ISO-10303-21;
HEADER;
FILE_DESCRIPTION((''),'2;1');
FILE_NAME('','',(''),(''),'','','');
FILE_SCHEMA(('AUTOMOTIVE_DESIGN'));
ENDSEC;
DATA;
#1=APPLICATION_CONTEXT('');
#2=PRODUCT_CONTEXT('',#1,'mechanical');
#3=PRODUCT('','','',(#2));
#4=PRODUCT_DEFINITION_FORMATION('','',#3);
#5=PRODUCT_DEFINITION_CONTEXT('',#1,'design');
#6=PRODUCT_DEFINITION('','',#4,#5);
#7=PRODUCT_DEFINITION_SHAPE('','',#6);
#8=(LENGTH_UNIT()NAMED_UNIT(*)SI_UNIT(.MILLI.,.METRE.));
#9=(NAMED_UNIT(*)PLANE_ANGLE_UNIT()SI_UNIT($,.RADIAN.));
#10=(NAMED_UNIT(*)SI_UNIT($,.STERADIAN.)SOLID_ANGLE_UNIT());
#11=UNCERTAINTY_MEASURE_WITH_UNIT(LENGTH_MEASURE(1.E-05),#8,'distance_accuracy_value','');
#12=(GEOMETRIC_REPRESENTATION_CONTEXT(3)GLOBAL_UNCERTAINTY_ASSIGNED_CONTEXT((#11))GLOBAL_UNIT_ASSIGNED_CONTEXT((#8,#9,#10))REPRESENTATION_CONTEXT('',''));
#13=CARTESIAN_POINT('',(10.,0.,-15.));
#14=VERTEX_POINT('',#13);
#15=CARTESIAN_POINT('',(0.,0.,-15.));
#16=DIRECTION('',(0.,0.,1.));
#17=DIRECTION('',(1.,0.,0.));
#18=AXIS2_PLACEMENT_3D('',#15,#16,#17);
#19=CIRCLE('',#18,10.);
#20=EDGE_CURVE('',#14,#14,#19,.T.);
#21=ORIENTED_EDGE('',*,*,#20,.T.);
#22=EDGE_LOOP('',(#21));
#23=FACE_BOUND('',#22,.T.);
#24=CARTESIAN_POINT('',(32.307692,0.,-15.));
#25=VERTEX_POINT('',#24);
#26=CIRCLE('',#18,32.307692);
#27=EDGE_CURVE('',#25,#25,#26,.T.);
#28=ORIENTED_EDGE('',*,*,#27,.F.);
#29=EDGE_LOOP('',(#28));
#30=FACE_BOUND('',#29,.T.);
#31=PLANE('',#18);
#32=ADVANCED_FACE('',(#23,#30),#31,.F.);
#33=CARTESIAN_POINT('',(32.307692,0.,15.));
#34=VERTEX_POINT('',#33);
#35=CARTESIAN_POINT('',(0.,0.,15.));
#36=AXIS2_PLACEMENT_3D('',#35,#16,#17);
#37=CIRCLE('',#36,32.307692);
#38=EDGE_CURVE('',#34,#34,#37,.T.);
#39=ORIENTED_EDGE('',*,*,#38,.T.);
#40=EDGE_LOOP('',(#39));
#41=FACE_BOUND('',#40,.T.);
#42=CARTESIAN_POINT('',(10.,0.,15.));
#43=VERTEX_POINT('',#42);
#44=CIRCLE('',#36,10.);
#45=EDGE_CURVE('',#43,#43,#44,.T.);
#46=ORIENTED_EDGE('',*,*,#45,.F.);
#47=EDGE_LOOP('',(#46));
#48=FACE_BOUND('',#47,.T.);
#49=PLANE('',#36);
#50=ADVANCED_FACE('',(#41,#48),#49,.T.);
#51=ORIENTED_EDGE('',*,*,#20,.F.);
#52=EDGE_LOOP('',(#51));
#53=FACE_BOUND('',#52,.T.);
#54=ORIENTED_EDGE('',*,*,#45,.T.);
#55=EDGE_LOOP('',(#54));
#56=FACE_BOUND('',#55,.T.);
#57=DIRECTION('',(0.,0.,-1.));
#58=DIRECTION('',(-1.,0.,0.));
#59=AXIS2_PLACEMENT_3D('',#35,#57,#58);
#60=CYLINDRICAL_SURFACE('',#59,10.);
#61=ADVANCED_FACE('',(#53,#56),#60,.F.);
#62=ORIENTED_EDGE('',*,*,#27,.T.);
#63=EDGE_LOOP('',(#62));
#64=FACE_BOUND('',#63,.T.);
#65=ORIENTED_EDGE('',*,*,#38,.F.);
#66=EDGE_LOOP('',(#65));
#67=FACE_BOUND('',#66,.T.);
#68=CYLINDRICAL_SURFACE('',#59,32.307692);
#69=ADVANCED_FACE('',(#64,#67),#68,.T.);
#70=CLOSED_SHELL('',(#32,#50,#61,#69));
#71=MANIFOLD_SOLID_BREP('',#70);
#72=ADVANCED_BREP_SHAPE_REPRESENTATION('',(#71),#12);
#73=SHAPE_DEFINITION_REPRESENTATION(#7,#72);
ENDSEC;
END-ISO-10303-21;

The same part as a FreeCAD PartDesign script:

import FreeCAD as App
import Part
import Sketcher
from FreeCAD import Vector

doc = App.newDocument("Part")
params = doc.addObject("Spreadsheet::Sheet", "Params")
for row, (alias, value) in enumerate([
    ("sketch1_diameter", "20 mm"),
    ("pad1_length", "30 mm"),
], start=1):
    params.set(f"A{row}", alias)
    params.set(f"B{row}", "=" + value)
    params.setAlias(f"B{row}", alias)

body = doc.addObject("PartDesign::Body", "Body")

sketch1 = body.newObject("Sketcher::SketchObject", "Sketch")
sketch1.AttachmentSupport = (doc.getObject("XY_Plane"), [""])
sketch1.MapMode = "FlatFace"
sketch1.AttachmentOffset = App.Placement(Vector(0, 0, -15), App.Rotation())
sketch1.addGeometry([
    Part.Circle(Vector(0, 0, 0), Vector(0, 0, 1), 32),
    Part.Circle(Vector(0, 0, 0), Vector(0, 0, 1), 10),
], False)
sketch1.addConstraint([
    Sketcher.Constraint("Coincident", 0, 3, -1, 1),
    Sketcher.Constraint("Coincident", 1, 3, -1, 1),
    Sketcher.Constraint("Diameter", 1, 20.0),
    Sketcher.Constraint("Diameter", 0, 64.615385),
])
sketch1.setExpression("Constraints[2]", "Params.sketch1_diameter")
pad1 = body.newObject("PartDesign::Pad", "Pad")
pad1.Profile = sketch1
pad1.setExpression("Length", "Params.pad1_length")

doc.recompute()
